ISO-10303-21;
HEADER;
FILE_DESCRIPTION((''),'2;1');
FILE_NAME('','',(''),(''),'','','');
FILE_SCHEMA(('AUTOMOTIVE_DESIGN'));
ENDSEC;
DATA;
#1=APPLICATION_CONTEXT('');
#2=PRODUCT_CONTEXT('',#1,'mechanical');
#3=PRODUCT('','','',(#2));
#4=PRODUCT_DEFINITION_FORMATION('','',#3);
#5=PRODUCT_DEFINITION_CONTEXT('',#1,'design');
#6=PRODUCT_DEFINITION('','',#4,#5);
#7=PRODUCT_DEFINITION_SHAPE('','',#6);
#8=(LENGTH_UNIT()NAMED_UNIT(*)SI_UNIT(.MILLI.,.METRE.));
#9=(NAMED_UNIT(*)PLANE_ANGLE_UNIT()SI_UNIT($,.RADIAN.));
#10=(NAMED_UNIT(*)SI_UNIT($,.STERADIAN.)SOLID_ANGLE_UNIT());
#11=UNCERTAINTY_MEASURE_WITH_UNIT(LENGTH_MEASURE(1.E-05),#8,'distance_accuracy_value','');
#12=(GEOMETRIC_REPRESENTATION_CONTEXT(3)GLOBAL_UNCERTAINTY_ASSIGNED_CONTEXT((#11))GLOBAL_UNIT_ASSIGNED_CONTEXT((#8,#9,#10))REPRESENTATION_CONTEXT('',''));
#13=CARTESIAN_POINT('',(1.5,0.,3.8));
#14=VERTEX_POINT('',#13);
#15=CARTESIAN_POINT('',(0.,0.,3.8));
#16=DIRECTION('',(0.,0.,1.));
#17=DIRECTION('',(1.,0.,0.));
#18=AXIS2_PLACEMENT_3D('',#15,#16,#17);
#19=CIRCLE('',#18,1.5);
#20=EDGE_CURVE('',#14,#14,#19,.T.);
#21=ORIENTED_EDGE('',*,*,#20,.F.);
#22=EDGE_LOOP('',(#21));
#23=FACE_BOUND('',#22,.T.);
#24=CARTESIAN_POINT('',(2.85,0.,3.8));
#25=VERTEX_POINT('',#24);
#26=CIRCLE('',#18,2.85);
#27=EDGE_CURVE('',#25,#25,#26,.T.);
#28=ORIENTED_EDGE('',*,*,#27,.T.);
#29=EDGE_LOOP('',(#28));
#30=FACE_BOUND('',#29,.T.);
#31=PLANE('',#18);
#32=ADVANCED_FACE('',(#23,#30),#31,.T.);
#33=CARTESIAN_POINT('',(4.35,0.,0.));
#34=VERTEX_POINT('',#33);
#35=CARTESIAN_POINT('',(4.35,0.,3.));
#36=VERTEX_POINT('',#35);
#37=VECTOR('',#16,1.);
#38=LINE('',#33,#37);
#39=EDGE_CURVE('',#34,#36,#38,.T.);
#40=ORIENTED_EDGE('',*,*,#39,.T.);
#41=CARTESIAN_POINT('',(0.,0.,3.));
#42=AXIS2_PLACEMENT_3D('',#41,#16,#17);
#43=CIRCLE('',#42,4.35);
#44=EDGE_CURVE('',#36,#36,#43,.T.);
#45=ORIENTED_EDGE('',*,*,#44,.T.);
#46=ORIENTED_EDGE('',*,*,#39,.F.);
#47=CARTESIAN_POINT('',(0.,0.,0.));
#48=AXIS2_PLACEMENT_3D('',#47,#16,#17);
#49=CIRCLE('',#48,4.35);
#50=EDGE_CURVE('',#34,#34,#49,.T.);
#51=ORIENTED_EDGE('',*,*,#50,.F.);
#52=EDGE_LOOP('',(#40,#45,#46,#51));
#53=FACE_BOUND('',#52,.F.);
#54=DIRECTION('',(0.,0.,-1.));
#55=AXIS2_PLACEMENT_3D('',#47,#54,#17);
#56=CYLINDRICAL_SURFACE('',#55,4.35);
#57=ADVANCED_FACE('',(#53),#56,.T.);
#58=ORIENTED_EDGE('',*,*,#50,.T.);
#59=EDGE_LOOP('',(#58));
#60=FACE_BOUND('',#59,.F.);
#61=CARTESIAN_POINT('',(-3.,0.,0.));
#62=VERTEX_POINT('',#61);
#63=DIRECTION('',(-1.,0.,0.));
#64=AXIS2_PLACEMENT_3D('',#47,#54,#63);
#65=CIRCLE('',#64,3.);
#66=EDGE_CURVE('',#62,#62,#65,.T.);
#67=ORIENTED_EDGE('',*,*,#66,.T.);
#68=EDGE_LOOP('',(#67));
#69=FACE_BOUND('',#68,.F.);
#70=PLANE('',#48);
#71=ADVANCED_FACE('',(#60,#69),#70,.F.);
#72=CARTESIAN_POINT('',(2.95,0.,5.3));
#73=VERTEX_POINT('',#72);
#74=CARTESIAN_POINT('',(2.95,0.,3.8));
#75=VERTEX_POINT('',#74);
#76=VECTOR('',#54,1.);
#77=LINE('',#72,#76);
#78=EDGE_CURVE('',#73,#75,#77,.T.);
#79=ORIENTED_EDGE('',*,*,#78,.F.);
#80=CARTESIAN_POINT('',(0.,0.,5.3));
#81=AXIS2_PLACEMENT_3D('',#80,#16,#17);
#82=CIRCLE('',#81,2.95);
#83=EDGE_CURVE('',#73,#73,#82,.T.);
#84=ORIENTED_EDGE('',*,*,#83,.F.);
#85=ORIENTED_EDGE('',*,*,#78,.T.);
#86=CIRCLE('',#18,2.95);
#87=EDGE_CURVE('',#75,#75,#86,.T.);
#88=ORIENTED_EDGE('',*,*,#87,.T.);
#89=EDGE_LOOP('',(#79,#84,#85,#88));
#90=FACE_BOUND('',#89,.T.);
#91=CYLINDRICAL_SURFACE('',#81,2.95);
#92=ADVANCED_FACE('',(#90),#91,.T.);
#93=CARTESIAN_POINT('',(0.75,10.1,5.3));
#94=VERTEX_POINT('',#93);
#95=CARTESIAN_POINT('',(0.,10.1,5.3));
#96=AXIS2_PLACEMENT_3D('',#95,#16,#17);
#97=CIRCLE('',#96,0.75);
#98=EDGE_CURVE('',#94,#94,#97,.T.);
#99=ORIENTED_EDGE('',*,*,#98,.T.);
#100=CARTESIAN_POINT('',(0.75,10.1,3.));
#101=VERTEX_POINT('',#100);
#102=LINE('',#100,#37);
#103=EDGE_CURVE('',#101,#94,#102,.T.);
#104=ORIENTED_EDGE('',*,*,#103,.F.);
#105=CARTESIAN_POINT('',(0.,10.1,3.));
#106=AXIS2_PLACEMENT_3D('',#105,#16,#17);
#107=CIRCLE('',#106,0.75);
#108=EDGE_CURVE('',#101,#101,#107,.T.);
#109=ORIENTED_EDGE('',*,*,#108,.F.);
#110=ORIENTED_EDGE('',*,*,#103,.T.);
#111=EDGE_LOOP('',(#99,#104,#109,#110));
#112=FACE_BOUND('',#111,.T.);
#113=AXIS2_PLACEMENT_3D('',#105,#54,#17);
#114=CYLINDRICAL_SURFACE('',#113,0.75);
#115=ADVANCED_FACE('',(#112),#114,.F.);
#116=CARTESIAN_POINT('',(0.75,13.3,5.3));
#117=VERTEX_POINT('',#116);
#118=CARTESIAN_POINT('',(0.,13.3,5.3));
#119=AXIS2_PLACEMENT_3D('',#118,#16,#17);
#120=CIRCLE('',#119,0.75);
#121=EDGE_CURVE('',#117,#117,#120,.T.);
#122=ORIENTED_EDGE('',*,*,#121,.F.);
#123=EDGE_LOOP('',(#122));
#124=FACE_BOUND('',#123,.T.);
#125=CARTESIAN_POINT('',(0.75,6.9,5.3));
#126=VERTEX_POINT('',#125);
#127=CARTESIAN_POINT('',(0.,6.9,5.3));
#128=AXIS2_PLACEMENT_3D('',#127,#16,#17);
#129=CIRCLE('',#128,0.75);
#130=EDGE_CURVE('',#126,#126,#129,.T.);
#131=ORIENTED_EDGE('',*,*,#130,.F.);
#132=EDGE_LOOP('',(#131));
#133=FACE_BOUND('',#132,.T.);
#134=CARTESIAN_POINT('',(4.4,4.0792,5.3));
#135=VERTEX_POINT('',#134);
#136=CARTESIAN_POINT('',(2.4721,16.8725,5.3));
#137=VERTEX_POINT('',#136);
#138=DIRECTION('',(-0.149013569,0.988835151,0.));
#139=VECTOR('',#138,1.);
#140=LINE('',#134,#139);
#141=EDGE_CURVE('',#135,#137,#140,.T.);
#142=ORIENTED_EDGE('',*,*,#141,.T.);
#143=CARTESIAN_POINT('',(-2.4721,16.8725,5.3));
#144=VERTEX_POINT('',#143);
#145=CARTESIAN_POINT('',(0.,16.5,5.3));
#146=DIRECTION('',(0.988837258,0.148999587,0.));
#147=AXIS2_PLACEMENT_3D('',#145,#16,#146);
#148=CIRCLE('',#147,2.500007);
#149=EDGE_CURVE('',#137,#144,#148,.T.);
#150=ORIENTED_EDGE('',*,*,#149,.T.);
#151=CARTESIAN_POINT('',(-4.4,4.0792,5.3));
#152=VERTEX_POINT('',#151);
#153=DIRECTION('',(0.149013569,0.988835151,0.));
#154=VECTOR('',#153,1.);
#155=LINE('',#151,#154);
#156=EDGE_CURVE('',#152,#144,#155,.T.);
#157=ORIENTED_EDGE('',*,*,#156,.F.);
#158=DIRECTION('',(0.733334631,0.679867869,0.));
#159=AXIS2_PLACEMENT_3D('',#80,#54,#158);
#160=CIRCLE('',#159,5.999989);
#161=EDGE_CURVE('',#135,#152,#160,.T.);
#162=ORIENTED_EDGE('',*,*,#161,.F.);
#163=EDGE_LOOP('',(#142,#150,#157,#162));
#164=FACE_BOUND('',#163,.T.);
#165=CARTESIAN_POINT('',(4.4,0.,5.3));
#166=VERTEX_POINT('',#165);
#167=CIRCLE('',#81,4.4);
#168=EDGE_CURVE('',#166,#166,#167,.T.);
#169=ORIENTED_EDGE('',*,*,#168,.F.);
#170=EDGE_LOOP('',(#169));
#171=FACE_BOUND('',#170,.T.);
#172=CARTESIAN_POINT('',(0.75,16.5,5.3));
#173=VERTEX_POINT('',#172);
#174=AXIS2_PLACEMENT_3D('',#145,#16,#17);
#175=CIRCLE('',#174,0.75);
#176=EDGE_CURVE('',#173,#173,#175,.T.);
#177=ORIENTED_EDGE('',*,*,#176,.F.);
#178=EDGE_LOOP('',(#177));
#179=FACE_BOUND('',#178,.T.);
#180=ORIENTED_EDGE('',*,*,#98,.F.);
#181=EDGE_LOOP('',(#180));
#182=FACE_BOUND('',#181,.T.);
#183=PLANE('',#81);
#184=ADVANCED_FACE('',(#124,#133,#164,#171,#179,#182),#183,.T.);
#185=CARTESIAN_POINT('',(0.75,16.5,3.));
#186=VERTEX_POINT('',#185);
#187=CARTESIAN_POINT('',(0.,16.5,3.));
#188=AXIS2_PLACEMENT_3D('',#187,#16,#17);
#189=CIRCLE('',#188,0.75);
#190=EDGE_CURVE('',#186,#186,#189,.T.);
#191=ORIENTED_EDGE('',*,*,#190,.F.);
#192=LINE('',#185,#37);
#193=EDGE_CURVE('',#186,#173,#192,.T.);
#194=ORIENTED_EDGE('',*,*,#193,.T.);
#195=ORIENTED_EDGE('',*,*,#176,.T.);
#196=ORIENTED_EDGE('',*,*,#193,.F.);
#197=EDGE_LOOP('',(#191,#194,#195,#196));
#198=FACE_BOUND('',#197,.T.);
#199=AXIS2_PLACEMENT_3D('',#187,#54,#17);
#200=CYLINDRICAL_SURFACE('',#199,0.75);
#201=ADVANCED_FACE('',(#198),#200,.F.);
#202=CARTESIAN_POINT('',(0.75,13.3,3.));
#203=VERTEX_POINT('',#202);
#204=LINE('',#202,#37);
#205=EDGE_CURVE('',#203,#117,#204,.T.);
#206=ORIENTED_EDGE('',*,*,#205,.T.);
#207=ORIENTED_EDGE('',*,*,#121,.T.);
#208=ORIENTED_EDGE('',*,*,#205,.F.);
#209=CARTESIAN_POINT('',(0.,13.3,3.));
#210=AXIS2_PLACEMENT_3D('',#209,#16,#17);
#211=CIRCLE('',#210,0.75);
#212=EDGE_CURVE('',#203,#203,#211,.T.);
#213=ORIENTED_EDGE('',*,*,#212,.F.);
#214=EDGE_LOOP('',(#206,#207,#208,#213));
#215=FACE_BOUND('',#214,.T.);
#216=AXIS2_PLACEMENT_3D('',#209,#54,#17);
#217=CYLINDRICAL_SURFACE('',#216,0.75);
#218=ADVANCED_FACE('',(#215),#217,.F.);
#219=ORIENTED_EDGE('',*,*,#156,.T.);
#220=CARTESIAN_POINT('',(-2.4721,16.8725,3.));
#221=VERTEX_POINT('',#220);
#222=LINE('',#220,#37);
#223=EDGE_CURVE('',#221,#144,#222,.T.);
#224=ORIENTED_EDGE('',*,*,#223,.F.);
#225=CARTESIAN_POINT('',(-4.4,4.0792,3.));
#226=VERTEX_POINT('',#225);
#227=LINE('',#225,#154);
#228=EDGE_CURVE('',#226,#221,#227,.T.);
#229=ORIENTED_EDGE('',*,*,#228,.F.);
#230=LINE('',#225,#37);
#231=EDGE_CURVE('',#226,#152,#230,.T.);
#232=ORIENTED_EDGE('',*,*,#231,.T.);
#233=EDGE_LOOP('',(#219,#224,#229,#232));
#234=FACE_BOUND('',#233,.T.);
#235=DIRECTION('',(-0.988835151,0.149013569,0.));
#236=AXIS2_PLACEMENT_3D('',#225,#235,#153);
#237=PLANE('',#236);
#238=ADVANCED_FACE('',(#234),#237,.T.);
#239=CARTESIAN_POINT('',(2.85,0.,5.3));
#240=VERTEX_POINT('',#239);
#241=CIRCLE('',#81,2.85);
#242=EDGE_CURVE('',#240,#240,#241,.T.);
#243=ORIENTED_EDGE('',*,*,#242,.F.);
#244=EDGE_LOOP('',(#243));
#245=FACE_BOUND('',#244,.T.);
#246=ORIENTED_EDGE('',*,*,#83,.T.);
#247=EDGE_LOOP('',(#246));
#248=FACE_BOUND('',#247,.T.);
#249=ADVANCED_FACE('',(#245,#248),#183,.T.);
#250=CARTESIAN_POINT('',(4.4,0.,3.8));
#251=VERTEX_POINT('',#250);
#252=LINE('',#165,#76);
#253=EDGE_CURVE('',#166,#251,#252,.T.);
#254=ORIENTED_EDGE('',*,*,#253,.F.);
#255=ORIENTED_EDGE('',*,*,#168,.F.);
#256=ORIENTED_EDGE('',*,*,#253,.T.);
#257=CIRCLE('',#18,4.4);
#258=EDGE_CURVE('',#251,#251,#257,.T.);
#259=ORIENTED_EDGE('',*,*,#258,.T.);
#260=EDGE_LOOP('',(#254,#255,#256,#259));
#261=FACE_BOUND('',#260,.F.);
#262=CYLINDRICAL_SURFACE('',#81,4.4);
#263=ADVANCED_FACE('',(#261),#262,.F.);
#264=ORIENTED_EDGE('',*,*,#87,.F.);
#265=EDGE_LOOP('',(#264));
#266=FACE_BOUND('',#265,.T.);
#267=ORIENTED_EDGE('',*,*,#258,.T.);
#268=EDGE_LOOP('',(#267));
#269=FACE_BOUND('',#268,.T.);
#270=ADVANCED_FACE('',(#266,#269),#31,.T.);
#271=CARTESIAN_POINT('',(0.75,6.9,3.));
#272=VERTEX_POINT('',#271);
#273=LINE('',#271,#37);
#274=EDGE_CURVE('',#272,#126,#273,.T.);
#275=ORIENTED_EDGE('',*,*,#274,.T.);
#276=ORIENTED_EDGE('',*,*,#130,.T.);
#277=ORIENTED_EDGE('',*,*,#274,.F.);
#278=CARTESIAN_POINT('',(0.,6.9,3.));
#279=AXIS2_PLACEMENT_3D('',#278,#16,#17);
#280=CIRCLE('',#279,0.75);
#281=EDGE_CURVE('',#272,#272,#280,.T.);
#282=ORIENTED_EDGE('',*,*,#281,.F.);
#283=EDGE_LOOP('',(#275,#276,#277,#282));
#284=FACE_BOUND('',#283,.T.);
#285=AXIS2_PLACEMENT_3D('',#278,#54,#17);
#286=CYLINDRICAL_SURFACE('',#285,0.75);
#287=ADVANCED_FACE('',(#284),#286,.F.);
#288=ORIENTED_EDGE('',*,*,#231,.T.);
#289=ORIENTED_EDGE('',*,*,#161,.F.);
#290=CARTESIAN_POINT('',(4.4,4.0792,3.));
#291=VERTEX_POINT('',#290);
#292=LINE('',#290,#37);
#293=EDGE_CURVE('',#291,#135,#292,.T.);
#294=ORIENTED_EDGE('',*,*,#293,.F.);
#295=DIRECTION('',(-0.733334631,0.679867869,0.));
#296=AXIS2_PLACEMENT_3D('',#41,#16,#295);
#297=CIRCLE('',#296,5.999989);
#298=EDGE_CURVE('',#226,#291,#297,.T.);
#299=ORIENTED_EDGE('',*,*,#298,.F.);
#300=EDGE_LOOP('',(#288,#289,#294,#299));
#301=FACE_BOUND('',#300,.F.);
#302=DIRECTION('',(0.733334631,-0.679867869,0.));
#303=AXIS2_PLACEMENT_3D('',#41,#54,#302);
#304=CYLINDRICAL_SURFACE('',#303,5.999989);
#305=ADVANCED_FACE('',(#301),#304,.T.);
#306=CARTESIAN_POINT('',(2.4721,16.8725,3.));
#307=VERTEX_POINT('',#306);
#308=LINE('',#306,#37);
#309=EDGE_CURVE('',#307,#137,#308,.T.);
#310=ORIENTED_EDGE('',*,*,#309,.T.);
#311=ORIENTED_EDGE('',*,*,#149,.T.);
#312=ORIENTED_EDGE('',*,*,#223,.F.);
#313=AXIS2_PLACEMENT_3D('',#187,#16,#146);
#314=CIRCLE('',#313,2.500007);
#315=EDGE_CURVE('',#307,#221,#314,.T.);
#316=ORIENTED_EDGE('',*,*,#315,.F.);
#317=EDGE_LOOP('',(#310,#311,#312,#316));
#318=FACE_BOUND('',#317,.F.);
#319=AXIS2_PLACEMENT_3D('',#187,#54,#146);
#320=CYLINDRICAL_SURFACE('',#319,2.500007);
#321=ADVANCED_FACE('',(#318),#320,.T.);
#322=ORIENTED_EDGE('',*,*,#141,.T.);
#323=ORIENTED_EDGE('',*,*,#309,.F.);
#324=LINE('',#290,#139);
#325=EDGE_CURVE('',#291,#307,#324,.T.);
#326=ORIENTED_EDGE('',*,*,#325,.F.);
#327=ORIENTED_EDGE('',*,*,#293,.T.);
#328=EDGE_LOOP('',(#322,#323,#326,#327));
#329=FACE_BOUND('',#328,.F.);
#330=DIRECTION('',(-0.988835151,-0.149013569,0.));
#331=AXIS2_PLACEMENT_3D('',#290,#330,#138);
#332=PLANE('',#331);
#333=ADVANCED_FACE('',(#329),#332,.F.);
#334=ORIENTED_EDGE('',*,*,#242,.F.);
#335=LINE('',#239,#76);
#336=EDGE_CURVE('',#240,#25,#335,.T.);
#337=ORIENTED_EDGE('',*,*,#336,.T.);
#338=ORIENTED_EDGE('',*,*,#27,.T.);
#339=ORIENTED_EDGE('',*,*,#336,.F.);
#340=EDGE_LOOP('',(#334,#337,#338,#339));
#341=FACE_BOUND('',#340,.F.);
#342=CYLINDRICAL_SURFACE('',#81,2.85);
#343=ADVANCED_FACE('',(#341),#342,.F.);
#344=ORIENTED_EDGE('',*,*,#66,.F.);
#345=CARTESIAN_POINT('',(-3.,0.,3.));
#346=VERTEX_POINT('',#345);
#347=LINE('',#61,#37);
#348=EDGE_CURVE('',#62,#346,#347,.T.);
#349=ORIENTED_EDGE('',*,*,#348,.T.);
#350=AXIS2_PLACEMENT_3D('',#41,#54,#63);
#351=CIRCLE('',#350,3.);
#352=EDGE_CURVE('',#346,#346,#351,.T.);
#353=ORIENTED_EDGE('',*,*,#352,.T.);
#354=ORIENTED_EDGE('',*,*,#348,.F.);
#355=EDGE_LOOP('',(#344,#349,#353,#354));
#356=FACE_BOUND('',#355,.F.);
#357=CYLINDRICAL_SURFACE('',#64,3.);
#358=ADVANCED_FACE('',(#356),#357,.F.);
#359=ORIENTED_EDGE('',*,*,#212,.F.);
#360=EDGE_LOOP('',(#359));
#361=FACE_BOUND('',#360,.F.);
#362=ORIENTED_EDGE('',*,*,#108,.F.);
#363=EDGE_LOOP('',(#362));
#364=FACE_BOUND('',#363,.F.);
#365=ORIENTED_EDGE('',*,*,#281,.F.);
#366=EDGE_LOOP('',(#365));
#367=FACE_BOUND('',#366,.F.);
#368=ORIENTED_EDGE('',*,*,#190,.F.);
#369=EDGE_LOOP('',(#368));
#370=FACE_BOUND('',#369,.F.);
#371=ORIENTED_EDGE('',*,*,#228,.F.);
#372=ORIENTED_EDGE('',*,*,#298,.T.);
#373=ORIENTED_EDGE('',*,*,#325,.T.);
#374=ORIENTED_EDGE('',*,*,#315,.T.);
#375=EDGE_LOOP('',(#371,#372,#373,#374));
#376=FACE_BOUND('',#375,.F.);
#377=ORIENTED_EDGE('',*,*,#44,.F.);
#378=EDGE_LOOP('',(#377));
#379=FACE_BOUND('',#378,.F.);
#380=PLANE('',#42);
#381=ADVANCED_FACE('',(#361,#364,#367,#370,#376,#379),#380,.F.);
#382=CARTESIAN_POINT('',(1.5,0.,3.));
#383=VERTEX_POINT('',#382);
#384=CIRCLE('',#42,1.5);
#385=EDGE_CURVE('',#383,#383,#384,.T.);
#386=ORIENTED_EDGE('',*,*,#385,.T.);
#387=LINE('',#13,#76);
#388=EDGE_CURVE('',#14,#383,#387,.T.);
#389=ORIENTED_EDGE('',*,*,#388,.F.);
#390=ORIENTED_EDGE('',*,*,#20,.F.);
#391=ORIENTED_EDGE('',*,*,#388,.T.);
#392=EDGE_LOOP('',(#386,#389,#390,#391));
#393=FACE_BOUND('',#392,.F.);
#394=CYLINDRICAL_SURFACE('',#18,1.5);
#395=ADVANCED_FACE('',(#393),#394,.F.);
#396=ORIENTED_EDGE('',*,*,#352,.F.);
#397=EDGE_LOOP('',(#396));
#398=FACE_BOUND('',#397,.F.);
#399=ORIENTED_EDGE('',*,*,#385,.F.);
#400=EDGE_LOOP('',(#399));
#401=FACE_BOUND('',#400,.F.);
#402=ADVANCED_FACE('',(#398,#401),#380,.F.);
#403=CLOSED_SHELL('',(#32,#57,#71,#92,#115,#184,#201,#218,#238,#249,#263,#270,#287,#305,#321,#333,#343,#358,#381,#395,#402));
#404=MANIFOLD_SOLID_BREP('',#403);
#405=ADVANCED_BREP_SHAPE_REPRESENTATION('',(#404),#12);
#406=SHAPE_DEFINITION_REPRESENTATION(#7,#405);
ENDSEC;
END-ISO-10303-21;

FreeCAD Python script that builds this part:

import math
import FreeCAD as App
import Part
import Sketcher

V = App.Vector
Q = App.Units.Quantity

doc = App.newDocument("Part")
body = doc.addObject("PartDesign::Body", "Body")

sketch1 = body.newObject("Sketcher::SketchObject", "Sketch")
sketch1.AttachmentSupport = (doc.getObject("XY_Plane"), [""])
sketch1.MapMode = "FlatFace"
sketch1.addGeometry(Part.Circle(V(0, 0, 0), V(0, 0, 1), 4.3), False)
sketch1.addConstraint([
    Sketcher.Constraint("Coincident", 0, 3, -1, 1),
    Sketcher.Constraint("Diameter", 0, Q("8.7 mm")),
])
pad1 = body.newObject("PartDesign::Pad", "Pad")
pad1.Profile = sketch1
pad1.Length = 3

sketch2 = body.newObject("Sketcher::SketchObject", "Sketch001")
sketch2.AttachmentSupport = (doc.getObject("XY_Plane"), [""])
sketch2.MapMode = "FlatFace"
sketch2.addGeometry(Part.Circle(V(0, 0, 0), V(0, 0, 1), 3), False)
sketch2.addConstraint([
    Sketcher.Constraint("Coincident", 0, 3, -1, 1),
    Sketcher.Constraint("Diameter", 0, Q("6 mm")),
])
pocket1 = body.newObject("PartDesign::Pocket", "Pocket")
pocket1.Profile = sketch2
pocket1.Type = "UpToFirst"
pocket1.Reversed = True

sketch3 = body.newObject("Sketcher::SketchObject", "Sketch002")
sketch3.AttachmentSupport = (doc.getObject("XY_Plane"), [""])
sketch3.MapMode = "FlatFace"
sketch3.AttachmentOffset = App.Placement(V(0, 0, 3), App.Rotation())
sketch3.addGeometry([
    Part.LineSegment(V(4.4, 4.1, 0), V(2.5, 16.9, 0)),
    Part.ArcOfCircle(Part.Circle(V(0, 16.5, 0), V(0, 0, 1), 2.5), math.radians(9), math.radians(171)),
    Part.LineSegment(V(-2.5, 16.9, 0), V(-4.4, 4.1, 0)),
    Part.ArcOfCircle(Part.Circle(V(0, 0, 0), V(0, 0, 1), 6), math.radians(137), math.radians(403)),
    Part.Circle(V(0, 6.9, 0), V(0, 0, 1), 0.8),
    Part.Circle(V(0, 10.1, 0), V(0, 0, 1), 0.8),
    Part.Circle(V(0, 13.3, 0), V(0, 0, 1), 0.8),
    Part.Circle(V(0, 16.5, 0), V(0, 0, 1), 0.8),
], False)
sketch3.addConstraint([
    Sketcher.Constraint("Tangent", 0, 2, 1, 1),
    Sketcher.Constraint("Tangent", 1, 2, 2, 1),
    Sketcher.Constraint("Coincident", 2, 2, 3, 1),
    Sketcher.Constraint("Coincident", 3, 2, 0, 1),
    Sketcher.Constraint("Coincident", 3, 3, -1, 1),
    Sketcher.Constraint("Coincident", 7, 3, 1, 3),
    Sketcher.Constraint("Equal", 4, 5),
    Sketcher.Constraint("Equal", 5, 6),
    Sketcher.Constraint("Equal", 6, 7),
    Sketcher.Constraint("Symmetric", 0, 2, 1, 2, -2),
    Sketcher.Constraint("PointOnObject", 4, 3, -2),
    Sketcher.Constraint("PointOnObject", 5, 3, -2),
    Sketcher.Constraint("PointOnObject", 6, 3, -2),
    Sketcher.Constraint("Diameter", 4, Q("1.5 mm")),
    Sketcher.Constraint("Radius", 3, Q("6 mm")),
    Sketcher.Constraint("Radius", 1, Q("2.5 mm")),
    Sketcher.Constraint("DistanceX", 2, 2, 3, 2, Q("8.8 mm")),
    Sketcher.Constraint("DistanceY", -1, 1, 1, 3, Q("16.5 mm")),
    Sketcher.Constraint("DistanceY", -1, 1, 4, 3, Q("6.9 mm")),
    Sketcher.Constraint("DistanceY", -1, 1, 5, 3, Q("10.1 mm")),
    Sketcher.Constraint("DistanceY", -1, 1, 6, 3, Q("13.3 mm")),
])
pad2 = body.newObject("PartDesign::Pad", "Pad001")
pad2.Profile = sketch3
pad2.Length = 2.3

sketch4 = body.newObject("Sketcher::SketchObject", "Sketch003")
sketch4.AttachmentSupport = (doc.getObject("XY_Plane"), [""])
sketch4.MapMode = "FlatFace"
sketch4.AttachmentOffset = App.Placement(V(0, 0, 5.3), App.Rotation())
sketch4.addGeometry([
    Part.Circle(V(0, 0, 0), V(0, 0, 1), 2.9),
    Part.Circle(V(0, 0, 0), V(0, 0, 1), 4.4),
    Part.Circle(V(0, 0, 0), V(0, 0, 1), 3),
], False)
sketch4.addConstraint([
    Sketcher.Constraint("Coincident", 0, 3, -1, 1),
    Sketcher.Constraint("Coincident", 1, 3, -1, 1),
    Sketcher.Constraint("Coincident", 2, 3, -1, 1),
    Sketcher.Constraint("Diameter", 0, Q("5.7 mm")),
    Sketcher.Constraint("Diameter", 1, Q("8.8 mm")),
    Sketcher.Constraint("Diameter", 2, Q("5.9 mm")),
])
pocket2 = body.newObject("PartDesign::Pocket", "Pocket001")
pocket2.Profile = sketch4
pocket2.Length = 1.5

sketch5 = body.newObject("Sketcher::SketchObject", "Sketch004")
sketch5.AttachmentSupport = (doc.getObject("XY_Plane"), [""])
sketch5.MapMode = "FlatFace"
sketch5.AttachmentOffset = App.Placement(V(0, 0, 3.8), App.Rotation())
sketch5.addGeometry(Part.Circle(V(0, 0, 0), V(0, 0, 1), 1.5), False)
sketch5.addConstraint([
    Sketcher.Constraint("Coincident", 0, 3, -1, 1),
    Sketcher.Constraint("Diameter", 0, Q("3 mm")),
])
pocket3 = body.newObject("PartDesign::Pocket", "Pocket002")
pocket3.Profile = sketch5
pocket3.Type = "UpToFirst"

doc.recompute()
